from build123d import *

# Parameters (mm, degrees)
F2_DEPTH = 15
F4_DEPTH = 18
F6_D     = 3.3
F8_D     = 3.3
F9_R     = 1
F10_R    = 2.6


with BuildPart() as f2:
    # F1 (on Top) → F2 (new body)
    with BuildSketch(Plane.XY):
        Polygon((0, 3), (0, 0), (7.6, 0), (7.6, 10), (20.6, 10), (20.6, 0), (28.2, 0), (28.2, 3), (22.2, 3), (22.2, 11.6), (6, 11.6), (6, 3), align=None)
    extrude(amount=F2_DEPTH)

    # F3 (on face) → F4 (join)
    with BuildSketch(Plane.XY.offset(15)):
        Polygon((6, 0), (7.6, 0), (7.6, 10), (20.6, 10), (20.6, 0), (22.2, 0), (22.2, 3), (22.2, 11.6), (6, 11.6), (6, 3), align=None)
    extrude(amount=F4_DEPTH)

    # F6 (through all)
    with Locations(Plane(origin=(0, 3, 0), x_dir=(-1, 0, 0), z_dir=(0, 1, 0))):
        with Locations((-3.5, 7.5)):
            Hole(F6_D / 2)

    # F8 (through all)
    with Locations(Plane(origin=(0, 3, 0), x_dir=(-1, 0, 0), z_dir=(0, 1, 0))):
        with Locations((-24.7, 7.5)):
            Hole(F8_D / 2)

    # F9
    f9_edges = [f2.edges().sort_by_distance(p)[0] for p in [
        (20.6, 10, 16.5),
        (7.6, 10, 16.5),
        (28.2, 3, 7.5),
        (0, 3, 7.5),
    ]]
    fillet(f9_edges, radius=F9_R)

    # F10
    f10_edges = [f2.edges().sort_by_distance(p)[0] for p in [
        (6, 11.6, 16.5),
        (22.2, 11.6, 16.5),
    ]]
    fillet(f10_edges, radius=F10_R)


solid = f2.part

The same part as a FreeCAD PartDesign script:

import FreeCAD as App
import Part
import Sketcher

V = App.Vector


def edges_at(feature, points):
    """Names of the edges that pass closest to the given points."""
    edges = feature.Shape.Edges
    near = lambda p: min(range(len(edges)), key=lambda i: edges[i].distToShape(Part.Vertex(*p))[0])
    return sorted({f"Edge{near(p) + 1}" for p in points})

doc = App.newDocument("Part")
body = doc.addObject("PartDesign::Body", "Body")

# Sketch on XY plane
sketch1 = body.newObject("Sketcher::SketchObject", "Sketch")
sketch1.AttachmentSupport = (doc.getObject("XY_Plane"), [""])
sketch1.MapMode = "FlatFace"
sketch1.addGeometry([
    Part.LineSegment(V(0, 3, 0), V(0, 0, 0)),  # 0
    Part.LineSegment(V(0, 0, 0), V(7.6, 0, 0)),  # 1
    Part.LineSegment(V(7.6, 0, 0), V(7.6, 10, 0)),  # 2
    Part.LineSegment(V(7.6, 10, 0), V(20.6, 10, 0)),  # 3
    Part.LineSegment(V(20.6, 10, 0), V(20.6, 0, 0)),  # 4
    Part.LineSegment(V(20.6, 0, 0), V(28.2, 0, 0)),  # 5
    Part.LineSegment(V(28.2, 0, 0), V(28.2, 3, 0)),  # 6
    Part.LineSegment(V(28.2, 3, 0), V(22.2, 3, 0)),  # 7
    Part.LineSegment(V(22.2, 3, 0), V(22.2, 11.6, 0)),  # 8
    Part.LineSegment(V(22.2, 11.6, 0), V(6, 11.6, 0)),  # 9
    Part.LineSegment(V(6, 11.6, 0), V(6, 3, 0)),  # 10
    Part.LineSegment(V(6, 3, 0), V(0, 3, 0)),  # 11
], False)
sketch1.addConstraint([
    Sketcher.Constraint("Coincident", 0, 2, 1, 1),
    Sketcher.Constraint("Coincident", 1, 2, 2, 1),
    Sketcher.Constraint("Coincident", 2, 2, 3, 1),
    Sketcher.Constraint("Coincident", 3, 2, 4, 1),
    Sketcher.Constraint("Coincident", 4, 2, 5, 1),
    Sketcher.Constraint("Coincident", 5, 2, 6, 1),
    Sketcher.Constraint("Coincident", 6, 2, 7, 1),
    Sketcher.Constraint("Coincident", 7, 2, 8, 1),
    Sketcher.Constraint("Coincident", 8, 2, 9, 1),
    Sketcher.Constraint("Coincident", 9, 2, 10, 1),
    Sketcher.Constraint("Coincident", 10, 2, 11, 1),
    Sketcher.Constraint("Coincident", 11, 2, 0, 1),
    Sketcher.Constraint("Vertical", 0),
    Sketcher.Constraint("Horizontal", 1),
    Sketcher.Constraint("Vertical", 2),
    Sketcher.Constraint("Horizontal", 3),
    Sketcher.Constraint("Vertical", 4),
    Sketcher.Constraint("Horizontal", 5),
    Sketcher.Constraint("Vertical", 6),
    Sketcher.Constraint("Horizontal", 7),
    Sketcher.Constraint("Vertical", 8),
    Sketcher.Constraint("Horizontal", 9),
    Sketcher.Constraint("Vertical", 10),
    Sketcher.Constraint("Horizontal", 11),
    Sketcher.Constraint("Coincident", 0, 2, -1, 1),
    Sketcher.Constraint("PointOnObject", 4, 2, -1),
    Sketcher.Constraint("Horizontal", 7, 2, 10, 2),
    Sketcher.Constraint("Equal", 1, 5),
    Sketcher.Constraint("Equal", 7, 11),
    Sketcher.Constraint("DistanceX", 3, 1, 3, 2, 13.0),
    Sketcher.Constraint("DistanceX", 7, 2, 7, 1, 6.0),
    Sketcher.Constraint("DistanceY", 0, 2, 0, 1, 3.0),
    Sketcher.Constraint("DistanceY", 2, 1, 2, 2, 10.0),
    Sketcher.Constraint("DistanceX", 1, 1, 1, 2, 7.6),
    Sketcher.Constraint("DistanceY", 8, 1, 8, 2, 8.6),
])
pad1 = body.newObject("PartDesign::Pad", "Pad")
pad1.Profile = sketch1
pad1.Length = 15

# Sketch on XY plane
sketch2 = body.newObject("Sketcher::SketchObject", "Sketch001")
sketch2.AttachmentSupport = (doc.getObject("XY_Plane"), [""])
sketch2.MapMode = "FlatFace"
sketch2.AttachmentOffset = App.Placement(V(0, 0, 15), App.Rotation())
sketch2.addGeometry([
    Part.LineSegment(V(6, 0, 0), V(7.6, 0, 0)),  # 0
    Part.LineSegment(V(7.6, 0, 0), V(7.6, 10, 0)),  # 1
    Part.LineSegment(V(7.6, 10, 0), V(20.6, 10, 0)),  # 2
    Part.LineSegment(V(20.6, 10, 0), V(20.6, 0, 0)),  # 3
    Part.LineSegment(V(20.6, 0, 0), V(22.2, 0, 0)),  # 4
    Part.LineSegment(V(22.2, 0, 0), V(22.2, 11.6, 0)),  # 5
    Part.LineSegment(V(22.2, 11.6, 0), V(6, 11.6, 0)),  # 6
    Part.LineSegment(V(6, 11.6, 0), V(6, 0, 0)),  # 7
], False)
sketch2.addConstraint([
    Sketcher.Constraint("Coincident", 0, 2, 1, 1),
    Sketcher.Constraint("Coincident", 1, 2, 2, 1),
    Sketcher.Constraint("Coincident", 2, 2, 3, 1),
    Sketcher.Constraint("Coincident", 3, 2, 4, 1),
    Sketcher.Constraint("Coincident", 4, 2, 5, 1),
    Sketcher.Constraint("Coincident", 5, 2, 6, 1),
    Sketcher.Constraint("Coincident", 6, 2, 7, 1),
    Sketcher.Constraint("Coincident", 7, 2, 0, 1),
    Sketcher.Constraint("Horizontal", 0),
    Sketcher.Constraint("Vertical", 1),
    Sketcher.Constraint("Horizontal", 2),
    Sketcher.Constraint("Vertical", 3),
    Sketcher.Constraint("Horizontal", 4),
    Sketcher.Constraint("Vertical", 5),
    Sketcher.Constraint("Horizontal", 6),
    Sketcher.Constraint("Vertical", 7),
    Sketcher.Constraint("PointOnObject", 0, 2, -1),
    Sketcher.Constraint("PointOnObject", 3, 2, -1),
    Sketcher.Constraint("Equal", 0, 4),
    Sketcher.Constraint("DistanceX", 2, 1, 2, 2, 13.0),
    Sketcher.Constraint("DistanceY", 1, 1, 1, 2, 10.0),
    Sketcher.Constraint("DistanceX", 0, 1, 0, 2, 1.6),
    Sketcher.Constraint("DistanceY", 5, 1, 5, 2, 11.6),
    Sketcher.Constraint("DistanceX", -1, 1, 6, 2, 6.0),
])
pad2 = body.newObject("PartDesign::Pad", "Pad001")
pad2.Profile = sketch2
pad2.Length = 18

# Sketch on XZ plane
sketch3 = body.newObject("Sketcher::SketchObject", "Sketch002")
sketch3.AttachmentSupport = (doc.getObject("XZ_Plane"), [""])
sketch3.MapMode = "FlatFace"
sketch3.AttachmentOffset = App.Placement(V(0, 0, -3), App.Rotation())
sketch3.addGeometry(Part.Circle(V(3.5, 7.5, 0), V(0, 0, 1), 1.6), False)
sketch3.addConstraint([
    Sketcher.Constraint("Diameter", 0, 3.3),
    Sketcher.Constraint("DistanceX", -1, 1, 0, 3, 3.5),
    Sketcher.Constraint("DistanceY", -1, 1, 0, 3, 7.5),
])
doc.recompute()
hole = body.newObject("PartDesign::Hole", "Hole")
hole.Profile = sketch3
hole.ThreadType = "None"
hole.Diameter = 3.3
hole.DepthType = "ThroughAll"
hole.Reversed = True

# Sketch on XZ plane
sketch4 = body.newObject("Sketcher::SketchObject", "Sketch003")
sketch4.AttachmentSupport = (doc.getObject("XZ_Plane"), [""])
sketch4.MapMode = "FlatFace"
sketch4.AttachmentOffset = App.Placement(V(0, 0, -3), App.Rotation())
sketch4.addGeometry(Part.Circle(V(24.7, 7.5, 0), V(0, 0, 1), 1.6), False)
sketch4.addConstraint([
    Sketcher.Constraint("Diameter", 0, 3.3),
    Sketcher.Constraint("DistanceX", -1, 1, 0, 3, 24.7),
    Sketcher.Constraint("DistanceY", -1, 1, 0, 3, 7.5),
])
doc.recompute()
hole2 = body.newObject("PartDesign::Hole", "Hole001")
hole2.Profile = sketch4
hole2.ThreadType = "None"
hole2.Diameter = 3.3
hole2.DepthType = "ThroughAll"
hole2.Reversed = True
doc.recompute()

fillet = body.newObject("PartDesign::Fillet", "Fillet")
fillet.Base = (hole2, edges_at(hole2, [
    (20.6, 10, 16.5),
    (7.6, 10, 16.5),
    (28.2, 3, 7.5),
    (0, 3, 7.5),
]))
fillet.Radius = 1
doc.recompute()

fillet2 = body.newObject("PartDesign::Fillet", "Fillet001")
fillet2.Base = (fillet, edges_at(fillet, [(6, 11.6, 16.5), (22.2, 11.6, 16.5)]))
fillet2.Radius = 2.6

doc.recompute()
